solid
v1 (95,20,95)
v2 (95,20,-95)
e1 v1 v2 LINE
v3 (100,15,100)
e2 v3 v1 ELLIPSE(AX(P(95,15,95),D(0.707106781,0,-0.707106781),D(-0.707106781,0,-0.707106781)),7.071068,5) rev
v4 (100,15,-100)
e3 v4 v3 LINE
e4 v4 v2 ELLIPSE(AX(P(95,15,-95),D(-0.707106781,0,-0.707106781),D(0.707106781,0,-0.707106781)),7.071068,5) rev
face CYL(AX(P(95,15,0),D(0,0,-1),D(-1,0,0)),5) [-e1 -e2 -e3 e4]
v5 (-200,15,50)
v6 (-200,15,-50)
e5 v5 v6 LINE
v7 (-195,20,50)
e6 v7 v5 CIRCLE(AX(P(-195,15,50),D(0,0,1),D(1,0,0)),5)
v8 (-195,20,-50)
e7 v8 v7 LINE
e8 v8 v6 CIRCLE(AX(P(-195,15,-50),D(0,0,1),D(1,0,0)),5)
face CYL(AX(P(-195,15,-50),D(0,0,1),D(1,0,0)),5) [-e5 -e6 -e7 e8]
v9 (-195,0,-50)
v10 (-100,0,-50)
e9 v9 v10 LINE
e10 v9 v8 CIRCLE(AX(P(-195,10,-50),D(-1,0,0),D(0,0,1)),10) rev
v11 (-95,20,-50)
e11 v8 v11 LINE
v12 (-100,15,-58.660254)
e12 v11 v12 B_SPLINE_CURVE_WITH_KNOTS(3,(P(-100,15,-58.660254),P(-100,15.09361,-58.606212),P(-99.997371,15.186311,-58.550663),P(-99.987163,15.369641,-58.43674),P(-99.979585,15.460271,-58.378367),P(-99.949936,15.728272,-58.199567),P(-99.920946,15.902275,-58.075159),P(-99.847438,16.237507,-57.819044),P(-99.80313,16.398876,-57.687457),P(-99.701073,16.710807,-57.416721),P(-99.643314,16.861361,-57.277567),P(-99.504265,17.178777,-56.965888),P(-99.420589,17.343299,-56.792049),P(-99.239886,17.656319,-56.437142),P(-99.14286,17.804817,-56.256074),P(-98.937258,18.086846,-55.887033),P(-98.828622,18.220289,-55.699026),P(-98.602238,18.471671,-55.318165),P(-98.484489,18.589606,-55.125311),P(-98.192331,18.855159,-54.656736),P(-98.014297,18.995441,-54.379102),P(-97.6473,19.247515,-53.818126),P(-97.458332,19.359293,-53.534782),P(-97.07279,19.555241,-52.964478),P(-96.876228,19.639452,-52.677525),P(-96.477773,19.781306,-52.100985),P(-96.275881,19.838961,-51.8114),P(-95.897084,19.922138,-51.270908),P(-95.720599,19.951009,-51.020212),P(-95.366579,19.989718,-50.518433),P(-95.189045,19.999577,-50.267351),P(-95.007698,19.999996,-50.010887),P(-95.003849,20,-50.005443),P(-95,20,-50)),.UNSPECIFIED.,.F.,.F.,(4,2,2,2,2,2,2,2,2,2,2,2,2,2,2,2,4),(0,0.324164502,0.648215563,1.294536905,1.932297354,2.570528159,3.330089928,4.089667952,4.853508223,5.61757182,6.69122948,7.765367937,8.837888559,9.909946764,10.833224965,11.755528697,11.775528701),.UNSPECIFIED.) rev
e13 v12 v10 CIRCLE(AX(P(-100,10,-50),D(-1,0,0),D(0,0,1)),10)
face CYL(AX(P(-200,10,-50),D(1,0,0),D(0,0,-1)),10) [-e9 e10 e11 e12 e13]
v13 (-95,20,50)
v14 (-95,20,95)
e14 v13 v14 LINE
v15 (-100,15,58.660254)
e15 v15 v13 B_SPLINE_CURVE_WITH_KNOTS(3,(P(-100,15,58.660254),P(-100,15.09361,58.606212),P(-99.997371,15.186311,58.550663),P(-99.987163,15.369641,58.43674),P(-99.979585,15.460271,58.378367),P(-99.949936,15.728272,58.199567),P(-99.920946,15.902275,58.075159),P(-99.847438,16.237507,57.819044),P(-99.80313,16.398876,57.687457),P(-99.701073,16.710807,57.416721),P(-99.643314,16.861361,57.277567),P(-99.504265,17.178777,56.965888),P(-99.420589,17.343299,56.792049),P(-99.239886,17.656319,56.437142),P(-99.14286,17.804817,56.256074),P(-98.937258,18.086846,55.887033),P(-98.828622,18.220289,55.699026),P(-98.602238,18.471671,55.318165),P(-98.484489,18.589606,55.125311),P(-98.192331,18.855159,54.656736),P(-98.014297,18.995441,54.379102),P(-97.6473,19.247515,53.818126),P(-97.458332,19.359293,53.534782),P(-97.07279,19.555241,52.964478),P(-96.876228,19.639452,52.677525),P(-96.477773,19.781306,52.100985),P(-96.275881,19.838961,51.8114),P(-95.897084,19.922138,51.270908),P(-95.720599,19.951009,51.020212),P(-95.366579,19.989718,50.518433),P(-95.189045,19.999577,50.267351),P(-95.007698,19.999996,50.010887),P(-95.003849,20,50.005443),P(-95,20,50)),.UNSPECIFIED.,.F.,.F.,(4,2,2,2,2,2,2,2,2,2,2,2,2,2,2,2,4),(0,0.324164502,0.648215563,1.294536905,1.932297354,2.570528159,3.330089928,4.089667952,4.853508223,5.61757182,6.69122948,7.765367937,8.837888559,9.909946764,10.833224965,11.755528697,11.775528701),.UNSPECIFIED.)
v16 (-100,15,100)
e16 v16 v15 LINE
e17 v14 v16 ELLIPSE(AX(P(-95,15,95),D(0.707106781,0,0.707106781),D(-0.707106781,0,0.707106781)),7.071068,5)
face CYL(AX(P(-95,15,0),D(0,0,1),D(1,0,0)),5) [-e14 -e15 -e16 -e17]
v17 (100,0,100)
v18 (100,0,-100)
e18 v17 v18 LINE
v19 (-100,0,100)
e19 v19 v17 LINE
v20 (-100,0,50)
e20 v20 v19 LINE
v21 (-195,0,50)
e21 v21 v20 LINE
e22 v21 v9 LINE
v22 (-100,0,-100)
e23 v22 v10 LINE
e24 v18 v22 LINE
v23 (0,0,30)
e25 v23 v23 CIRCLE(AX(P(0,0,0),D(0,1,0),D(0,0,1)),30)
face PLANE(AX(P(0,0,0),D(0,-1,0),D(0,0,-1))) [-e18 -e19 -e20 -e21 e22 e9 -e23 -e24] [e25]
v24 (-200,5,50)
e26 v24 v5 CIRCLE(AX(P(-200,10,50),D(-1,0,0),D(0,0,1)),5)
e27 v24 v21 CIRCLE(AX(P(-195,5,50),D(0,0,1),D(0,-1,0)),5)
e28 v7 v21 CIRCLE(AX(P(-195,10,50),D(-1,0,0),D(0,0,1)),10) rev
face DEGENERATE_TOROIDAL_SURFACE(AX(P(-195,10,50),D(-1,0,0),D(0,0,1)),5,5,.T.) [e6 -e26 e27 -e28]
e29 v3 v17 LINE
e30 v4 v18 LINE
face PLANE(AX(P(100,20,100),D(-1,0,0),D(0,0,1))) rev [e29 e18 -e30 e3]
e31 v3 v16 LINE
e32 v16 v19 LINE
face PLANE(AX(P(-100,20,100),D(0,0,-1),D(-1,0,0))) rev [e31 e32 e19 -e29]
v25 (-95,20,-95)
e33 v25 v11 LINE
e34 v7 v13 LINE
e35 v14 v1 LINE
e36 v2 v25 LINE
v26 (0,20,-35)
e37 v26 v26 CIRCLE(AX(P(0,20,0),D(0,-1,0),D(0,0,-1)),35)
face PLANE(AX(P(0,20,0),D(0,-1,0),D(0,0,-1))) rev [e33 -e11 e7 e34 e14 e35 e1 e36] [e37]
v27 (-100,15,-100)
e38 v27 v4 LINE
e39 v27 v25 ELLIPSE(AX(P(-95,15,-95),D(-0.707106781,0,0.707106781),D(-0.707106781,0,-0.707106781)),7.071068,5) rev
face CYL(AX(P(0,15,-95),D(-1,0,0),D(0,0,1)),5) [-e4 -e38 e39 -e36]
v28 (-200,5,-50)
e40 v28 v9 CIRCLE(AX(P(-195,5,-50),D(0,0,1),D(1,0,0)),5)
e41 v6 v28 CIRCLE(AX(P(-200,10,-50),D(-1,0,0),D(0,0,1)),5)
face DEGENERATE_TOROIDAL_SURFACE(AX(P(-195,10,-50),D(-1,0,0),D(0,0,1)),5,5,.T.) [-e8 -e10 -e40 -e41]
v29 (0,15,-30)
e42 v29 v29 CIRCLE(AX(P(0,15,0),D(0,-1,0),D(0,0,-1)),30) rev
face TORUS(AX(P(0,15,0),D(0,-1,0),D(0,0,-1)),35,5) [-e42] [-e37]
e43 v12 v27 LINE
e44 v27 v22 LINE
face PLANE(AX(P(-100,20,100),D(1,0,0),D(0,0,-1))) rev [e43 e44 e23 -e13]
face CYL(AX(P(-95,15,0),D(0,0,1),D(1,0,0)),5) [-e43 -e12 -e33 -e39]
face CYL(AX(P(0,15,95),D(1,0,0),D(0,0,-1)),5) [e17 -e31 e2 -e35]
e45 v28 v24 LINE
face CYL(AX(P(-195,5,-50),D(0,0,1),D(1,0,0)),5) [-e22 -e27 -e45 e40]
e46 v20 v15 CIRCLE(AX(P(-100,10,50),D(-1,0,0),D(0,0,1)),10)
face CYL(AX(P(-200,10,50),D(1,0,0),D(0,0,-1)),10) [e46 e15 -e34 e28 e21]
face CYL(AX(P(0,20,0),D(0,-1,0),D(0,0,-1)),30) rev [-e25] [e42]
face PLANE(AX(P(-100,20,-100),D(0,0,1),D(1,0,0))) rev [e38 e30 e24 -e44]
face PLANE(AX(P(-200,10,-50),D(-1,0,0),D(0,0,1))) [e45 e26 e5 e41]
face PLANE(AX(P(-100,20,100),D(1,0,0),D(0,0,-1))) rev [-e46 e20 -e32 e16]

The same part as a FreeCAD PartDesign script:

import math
import FreeCAD as App
import Part
import Sketcher


def edges_at(feature, points):
    """Names of the edges that pass closest to the given points."""
    edges = feature.Shape.Edges
    near = lambda p: min(range(len(edges)), key=lambda i: edges[i].distToShape(Part.Vertex(*p))[0])
    return sorted({f"Edge{near(p) + 1}" for p in points})


def add_polygon(sketch, points):
    """Adds a closed chain of lines whose ends are joined by coincident constraints."""
    first, n = sketch.GeometryCount, len(points)
    for a, b in zip(points, points[1:] + points[:1]):
        sketch.addGeometry(Part.LineSegment(App.Vector(*a, 0), App.Vector(*b, 0)), False)
    for i in range(n):
        sketch.addConstraint(Sketcher.Constraint("Coincident", first + i, 2, first + (i + 1) % n, 1))

doc = App.newDocument("Part")
params = doc.addObject("Spreadsheet::Sheet", "Params")
for row, (alias, value) in enumerate([
    ("sketch1_diameter", "60 mm"),
    ("sketch1_width", "200 mm"),
    ("pad1_length", "20 mm"),
    ("sketch2_radius", "10 mm"),
    ("sketch2_height", "100 mm"),
    ("pad2_length", "100 mm"),
    ("fillet_radius", "5 mm"),
], start=1):
    params.set(f"A{row}", alias)
    params.set(f"B{row}", "=" + value)
    params.setAlias(f"B{row}", alias)

body = doc.addObject("PartDesign::Body", "Body")

# Sketch on XZ plane
sketch1 = body.newObject("Sketcher::SketchObject", "Sketch")
sketch1.AttachmentSupport = (doc.getObject("XZ_Plane"), [""])
sketch1.MapMode = "FlatFace"
add_polygon(sketch1, [(-100, -100), (-100, 100), (100, 100), (100, -100)])  # lines 0-3
sketch1.addGeometry(Part.Circle(App.Vector(0, 0, 0), App.Vector(0, 0, 1), 30), False)  # 4
sketch1.addConstraint([
    Sketcher.Constraint("Vertical", 0),
    Sketcher.Constraint("Horizontal", 1),
    Sketcher.Constraint("Vertical", 2),
    Sketcher.Constraint("Horizontal", 3),
    Sketcher.Constraint("Coincident", 4, 3, -1, 1),
    Sketcher.Constraint("Symmetric", 0, 2, 2, 2, -1, 1),
    Sketcher.Constraint("Equal", 3, 0),
    Sketcher.Constraint("Diameter", 4, 60.0),
    Sketcher.Constraint("DistanceX", 1, 1, 1, 2, 200.0),
])
sketch1.setExpression("Constraints[11]", "Params.sketch1_diameter")
sketch1.setExpression("Constraints[12]", "Params.sketch1_width")
pad1 = body.newObject("PartDesign::Pad", "Pad")
pad1.Profile = sketch1
pad1.setExpression("Length", "Params.pad1_length")
pad1.Reversed = True

# Sketch on YZ plane
sketch2 = body.newObject("Sketcher::SketchObject", "Sketch001")
sketch2.AttachmentSupport = (doc.getObject("YZ_Plane"), [""])
sketch2.MapMode = "FlatFace"
sketch2.AttachmentOffset = App.Placement(App.Vector(0, 0, -100), App.Rotation())
sketch2.addGeometry([
    Part.LineSegment(App.Vector(20, 50, 0), App.Vector(20, -50, 0)),
    Part.ArcOfCircle(Part.Circle(App.Vector(10, -50, 0), App.Vector(0, 0, 1), 10), math.radians(180), math.radians(360)),
    Part.LineSegment(App.Vector(0, -50, 0), App.Vector(0, 50, 0)),
    Part.ArcOfCircle(Part.Circle(App.Vector(10, 50, 0), App.Vector(0, 0, 1), 10), math.radians(0), math.radians(180)),
], False)
sketch2.addConstraint([
    Sketcher.Constraint("Tangent", 0, 2, 1, 2),
    Sketcher.Constraint("Tangent", 1, 1, 2, 1),
    Sketcher.Constraint("Tangent", 2, 2, 3, 2),
    Sketcher.Constraint("Tangent", 3, 1, 0, 1),
    Sketcher.Constraint("Vertical", 0),
    Sketcher.Constraint("Vertical", 2),
    Sketcher.Constraint("Symmetric", 1, 1, 2, 2, -1, 1),
    Sketcher.Constraint("Radius", 1, 10.0),
    Sketcher.Constraint("DistanceY", 0, 2, 0, 1, 100.0),
])
sketch2.setExpression("Constraints[7]", "Params.sketch2_radius")
sketch2.setExpression("Constraints[8]", "Params.sketch2_height")
pad2 = body.newObject("PartDesign::Pad", "Pad001")
pad2.Profile = sketch2
pad2.setExpression("Length", "Params.pad2_length")
pad2.Reversed = True
doc.recompute()

fillet = body.newObject("PartDesign::Fillet", "Fillet")
fillet.Base = (pad2, edges_at(pad2, [
    (0, 20, -30),
    (-100, 20, -75),
    (0, 20, 100),
    (-100, 20, 75),
    (-200, 10, -60),
    (-200, 0, 0),
    (-200, 10, 60),
    (-200, 20, 0),
    (100, 20, 0),
    (0, 20, -100),
]))
fillet.setExpression("Radius", "Params.fillet_radius")

doc.recompute()
